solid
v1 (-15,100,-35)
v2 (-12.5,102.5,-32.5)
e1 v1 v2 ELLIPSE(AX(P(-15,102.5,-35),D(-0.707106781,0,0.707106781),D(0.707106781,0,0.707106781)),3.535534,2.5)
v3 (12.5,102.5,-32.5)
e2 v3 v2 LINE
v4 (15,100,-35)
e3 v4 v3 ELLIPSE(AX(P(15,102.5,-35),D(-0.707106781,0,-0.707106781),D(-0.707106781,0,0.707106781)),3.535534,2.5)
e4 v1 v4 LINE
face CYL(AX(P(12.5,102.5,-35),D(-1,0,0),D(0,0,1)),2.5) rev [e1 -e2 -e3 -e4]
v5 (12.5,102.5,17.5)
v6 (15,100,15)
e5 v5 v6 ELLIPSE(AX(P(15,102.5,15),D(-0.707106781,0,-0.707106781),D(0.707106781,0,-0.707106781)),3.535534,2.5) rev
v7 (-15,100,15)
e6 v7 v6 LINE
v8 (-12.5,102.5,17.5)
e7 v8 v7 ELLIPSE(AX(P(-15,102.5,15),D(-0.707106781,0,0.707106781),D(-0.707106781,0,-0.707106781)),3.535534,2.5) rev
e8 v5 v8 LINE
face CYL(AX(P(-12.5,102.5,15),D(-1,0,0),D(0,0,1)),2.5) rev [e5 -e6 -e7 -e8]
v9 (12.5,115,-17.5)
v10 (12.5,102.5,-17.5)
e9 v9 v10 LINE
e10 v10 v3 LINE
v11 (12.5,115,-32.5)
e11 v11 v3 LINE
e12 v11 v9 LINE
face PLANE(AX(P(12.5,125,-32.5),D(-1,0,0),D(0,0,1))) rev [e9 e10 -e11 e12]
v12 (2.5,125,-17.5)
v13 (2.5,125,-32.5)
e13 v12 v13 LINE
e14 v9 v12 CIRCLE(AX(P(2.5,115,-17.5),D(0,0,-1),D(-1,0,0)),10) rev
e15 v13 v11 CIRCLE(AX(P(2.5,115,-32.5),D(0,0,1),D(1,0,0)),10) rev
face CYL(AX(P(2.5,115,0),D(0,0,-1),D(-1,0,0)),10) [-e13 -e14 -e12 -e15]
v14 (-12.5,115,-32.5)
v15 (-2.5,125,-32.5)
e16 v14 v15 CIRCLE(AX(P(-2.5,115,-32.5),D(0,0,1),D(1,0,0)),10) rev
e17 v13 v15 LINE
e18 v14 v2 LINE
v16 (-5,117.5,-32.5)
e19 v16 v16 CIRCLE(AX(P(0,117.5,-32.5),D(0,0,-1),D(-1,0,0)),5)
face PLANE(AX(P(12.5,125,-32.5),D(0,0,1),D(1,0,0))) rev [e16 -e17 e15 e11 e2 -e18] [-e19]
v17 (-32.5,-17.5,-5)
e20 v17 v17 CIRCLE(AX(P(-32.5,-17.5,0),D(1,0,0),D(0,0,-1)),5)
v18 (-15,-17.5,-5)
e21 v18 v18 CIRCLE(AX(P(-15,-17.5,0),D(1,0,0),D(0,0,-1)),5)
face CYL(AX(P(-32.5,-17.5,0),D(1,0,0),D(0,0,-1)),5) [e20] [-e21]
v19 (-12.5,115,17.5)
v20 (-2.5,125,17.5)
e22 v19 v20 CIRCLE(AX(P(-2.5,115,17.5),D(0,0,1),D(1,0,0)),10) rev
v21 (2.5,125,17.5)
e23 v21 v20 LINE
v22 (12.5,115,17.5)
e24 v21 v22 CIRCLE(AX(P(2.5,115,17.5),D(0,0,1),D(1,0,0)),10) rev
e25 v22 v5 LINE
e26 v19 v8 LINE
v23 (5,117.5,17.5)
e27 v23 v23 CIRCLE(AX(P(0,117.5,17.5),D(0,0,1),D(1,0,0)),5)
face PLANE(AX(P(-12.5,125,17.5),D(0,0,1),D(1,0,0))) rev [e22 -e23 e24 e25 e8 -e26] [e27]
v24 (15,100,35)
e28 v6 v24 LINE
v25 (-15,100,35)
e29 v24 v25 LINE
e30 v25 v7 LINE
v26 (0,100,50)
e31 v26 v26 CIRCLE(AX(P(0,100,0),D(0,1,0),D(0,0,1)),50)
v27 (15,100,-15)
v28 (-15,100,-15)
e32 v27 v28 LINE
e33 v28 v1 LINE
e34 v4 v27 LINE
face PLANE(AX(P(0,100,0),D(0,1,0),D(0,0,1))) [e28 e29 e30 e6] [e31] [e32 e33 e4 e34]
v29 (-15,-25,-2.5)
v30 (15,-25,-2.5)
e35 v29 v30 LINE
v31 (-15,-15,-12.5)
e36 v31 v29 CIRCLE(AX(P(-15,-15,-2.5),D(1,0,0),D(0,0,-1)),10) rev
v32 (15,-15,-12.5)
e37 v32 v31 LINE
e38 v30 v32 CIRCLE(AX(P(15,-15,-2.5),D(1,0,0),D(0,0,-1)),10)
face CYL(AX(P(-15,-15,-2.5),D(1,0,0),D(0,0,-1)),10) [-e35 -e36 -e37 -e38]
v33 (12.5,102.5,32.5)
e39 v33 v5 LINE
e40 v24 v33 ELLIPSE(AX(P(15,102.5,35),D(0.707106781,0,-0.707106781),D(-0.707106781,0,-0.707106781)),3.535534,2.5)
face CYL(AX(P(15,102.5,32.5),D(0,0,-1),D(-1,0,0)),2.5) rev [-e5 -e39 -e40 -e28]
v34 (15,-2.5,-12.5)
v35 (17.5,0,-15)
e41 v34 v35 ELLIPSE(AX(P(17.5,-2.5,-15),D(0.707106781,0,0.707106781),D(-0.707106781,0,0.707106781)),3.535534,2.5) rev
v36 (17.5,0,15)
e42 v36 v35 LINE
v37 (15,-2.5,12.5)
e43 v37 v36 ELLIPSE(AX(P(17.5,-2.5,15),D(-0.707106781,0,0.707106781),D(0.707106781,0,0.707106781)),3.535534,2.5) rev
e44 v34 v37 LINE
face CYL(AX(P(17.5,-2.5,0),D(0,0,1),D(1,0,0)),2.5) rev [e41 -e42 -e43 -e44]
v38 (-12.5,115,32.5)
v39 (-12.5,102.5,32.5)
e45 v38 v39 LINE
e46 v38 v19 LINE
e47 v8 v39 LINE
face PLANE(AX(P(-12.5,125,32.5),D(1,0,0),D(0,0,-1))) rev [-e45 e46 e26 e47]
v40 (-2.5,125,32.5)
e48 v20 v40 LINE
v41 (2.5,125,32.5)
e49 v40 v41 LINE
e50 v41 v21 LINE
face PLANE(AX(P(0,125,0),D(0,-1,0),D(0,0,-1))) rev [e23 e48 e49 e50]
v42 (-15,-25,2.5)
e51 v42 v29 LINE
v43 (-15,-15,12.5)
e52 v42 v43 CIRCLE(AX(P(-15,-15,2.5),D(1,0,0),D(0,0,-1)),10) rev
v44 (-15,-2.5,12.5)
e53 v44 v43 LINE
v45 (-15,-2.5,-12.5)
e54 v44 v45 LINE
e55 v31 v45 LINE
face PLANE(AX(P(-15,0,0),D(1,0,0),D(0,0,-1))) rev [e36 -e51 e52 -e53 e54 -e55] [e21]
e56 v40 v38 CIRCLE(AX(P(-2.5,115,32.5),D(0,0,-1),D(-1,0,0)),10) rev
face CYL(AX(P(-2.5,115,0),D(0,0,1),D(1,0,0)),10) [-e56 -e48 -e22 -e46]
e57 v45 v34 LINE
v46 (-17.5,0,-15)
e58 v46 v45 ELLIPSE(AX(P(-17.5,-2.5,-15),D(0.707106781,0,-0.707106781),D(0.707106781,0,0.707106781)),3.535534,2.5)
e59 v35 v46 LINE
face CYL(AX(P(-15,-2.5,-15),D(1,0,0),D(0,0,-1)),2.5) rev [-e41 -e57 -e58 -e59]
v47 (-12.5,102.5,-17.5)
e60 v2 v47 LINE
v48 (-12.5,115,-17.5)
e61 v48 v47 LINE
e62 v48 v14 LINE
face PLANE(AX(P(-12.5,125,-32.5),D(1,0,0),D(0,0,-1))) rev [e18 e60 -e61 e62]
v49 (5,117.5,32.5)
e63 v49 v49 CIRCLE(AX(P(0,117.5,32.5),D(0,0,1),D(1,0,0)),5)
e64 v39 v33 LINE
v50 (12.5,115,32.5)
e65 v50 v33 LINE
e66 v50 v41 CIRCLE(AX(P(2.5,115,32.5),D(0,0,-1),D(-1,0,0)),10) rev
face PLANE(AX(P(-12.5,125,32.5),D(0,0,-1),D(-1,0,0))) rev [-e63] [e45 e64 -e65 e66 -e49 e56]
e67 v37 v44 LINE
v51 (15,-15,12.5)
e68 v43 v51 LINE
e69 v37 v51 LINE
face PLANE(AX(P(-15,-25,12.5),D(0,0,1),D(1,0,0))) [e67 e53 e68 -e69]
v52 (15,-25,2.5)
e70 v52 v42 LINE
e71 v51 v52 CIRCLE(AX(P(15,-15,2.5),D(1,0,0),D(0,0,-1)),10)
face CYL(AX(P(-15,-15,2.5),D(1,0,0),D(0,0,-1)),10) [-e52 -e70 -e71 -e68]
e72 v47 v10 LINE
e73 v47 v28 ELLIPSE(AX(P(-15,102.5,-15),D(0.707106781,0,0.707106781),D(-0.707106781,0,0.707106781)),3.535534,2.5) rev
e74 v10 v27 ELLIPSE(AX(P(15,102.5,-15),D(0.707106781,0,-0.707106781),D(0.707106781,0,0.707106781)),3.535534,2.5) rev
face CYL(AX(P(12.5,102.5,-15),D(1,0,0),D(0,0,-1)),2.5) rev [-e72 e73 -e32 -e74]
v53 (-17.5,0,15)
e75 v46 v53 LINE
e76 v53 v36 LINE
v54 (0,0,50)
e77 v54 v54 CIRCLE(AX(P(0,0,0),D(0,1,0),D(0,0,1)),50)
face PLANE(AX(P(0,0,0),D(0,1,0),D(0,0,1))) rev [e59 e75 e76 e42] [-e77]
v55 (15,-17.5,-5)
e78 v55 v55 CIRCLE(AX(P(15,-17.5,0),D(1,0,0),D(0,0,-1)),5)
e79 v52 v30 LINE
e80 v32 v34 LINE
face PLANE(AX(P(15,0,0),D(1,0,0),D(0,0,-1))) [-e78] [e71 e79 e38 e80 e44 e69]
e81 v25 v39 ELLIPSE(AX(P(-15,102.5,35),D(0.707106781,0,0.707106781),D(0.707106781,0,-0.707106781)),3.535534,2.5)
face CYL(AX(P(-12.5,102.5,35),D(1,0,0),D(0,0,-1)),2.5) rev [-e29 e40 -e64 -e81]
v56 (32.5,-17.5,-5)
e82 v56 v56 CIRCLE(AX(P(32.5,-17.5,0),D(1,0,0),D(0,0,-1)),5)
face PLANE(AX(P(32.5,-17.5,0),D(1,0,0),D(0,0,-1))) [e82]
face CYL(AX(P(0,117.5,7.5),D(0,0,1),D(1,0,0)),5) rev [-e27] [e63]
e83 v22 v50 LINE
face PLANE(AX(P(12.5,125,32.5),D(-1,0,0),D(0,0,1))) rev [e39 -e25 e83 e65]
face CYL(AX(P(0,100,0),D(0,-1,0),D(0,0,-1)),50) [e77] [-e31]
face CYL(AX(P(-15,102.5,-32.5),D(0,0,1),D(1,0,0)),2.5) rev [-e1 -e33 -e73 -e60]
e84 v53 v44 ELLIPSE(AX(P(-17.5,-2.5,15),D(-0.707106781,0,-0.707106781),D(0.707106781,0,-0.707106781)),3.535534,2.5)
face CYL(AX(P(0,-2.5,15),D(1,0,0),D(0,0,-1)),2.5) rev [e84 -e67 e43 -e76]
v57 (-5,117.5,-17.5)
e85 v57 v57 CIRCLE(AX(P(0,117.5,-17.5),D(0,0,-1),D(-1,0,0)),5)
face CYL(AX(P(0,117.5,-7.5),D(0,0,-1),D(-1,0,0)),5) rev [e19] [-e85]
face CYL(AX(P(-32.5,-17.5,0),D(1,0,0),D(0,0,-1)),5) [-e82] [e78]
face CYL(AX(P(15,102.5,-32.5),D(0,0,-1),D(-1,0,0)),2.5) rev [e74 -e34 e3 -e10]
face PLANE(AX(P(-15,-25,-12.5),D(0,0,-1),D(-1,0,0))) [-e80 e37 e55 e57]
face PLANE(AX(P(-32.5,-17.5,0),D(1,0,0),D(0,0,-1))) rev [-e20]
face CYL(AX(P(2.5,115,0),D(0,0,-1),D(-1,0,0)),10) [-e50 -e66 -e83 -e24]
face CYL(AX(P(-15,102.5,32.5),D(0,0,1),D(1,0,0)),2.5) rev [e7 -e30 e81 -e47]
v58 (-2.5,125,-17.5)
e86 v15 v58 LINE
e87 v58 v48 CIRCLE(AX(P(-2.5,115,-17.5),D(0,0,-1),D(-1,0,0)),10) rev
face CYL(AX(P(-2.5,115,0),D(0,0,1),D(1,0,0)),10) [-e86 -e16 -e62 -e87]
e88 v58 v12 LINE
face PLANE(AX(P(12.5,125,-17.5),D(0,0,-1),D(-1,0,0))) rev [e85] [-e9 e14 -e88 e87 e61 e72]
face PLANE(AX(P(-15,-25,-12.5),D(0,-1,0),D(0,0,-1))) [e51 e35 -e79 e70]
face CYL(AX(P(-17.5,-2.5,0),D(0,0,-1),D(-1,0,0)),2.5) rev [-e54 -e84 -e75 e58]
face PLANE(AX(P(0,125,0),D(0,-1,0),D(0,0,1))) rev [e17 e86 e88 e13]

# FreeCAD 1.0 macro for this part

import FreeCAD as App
import Part
import Sketcher
from FreeCAD import Vector
Q = App.Units.Quantity


def edges_at(feature, points):
    """Names of the edges that pass closest to the given points."""
    edges = feature.Shape.Edges
    near = lambda p: min(range(len(edges)), key=lambda i: edges[i].distToShape(Part.Vertex(*p))[0])
    return sorted({f"Edge{near(p) + 1}" for p in points})


def add_polygon(sketch, points):
    """Adds a closed chain of lines whose ends are joined by coincident constraints."""
    first, n = sketch.GeometryCount, len(points)
    for a, b in zip(points, points[1:] + points[:1]):
        sketch.addGeometry(Part.LineSegment(App.Vector(*a, 0), App.Vector(*b, 0)), False)
    for i in range(n):
        sketch.addConstraint(Sketcher.Constraint("Coincident", first + i, 2, first + (i + 1) % n, 1))

doc = App.newDocument("Part")
body = doc.addObject("PartDesign::Body", "Body")

# Sketch on XZ plane
sketch1 = doc.addObject("Sketcher::SketchObject", "Sketch")
body.addObject(sketch1)
sketch1.AttachmentSupport = (doc.XZ_Plane, [""])
sketch1.MapMode = "FlatFace"
sketch1.addGeometry(Part.Circle(Vector(0, 0, 0), Vector(0, 0, 1), 50), False)
sketch1.addConstraint([
    Sketcher.Constraint("Coincident", 0, 3, -1, 1),
    Sketcher.Constraint("Diameter", 0, Q("100 mm")),
])
pad1 = doc.addObject("PartDesign::Pad", "Pad")
body.addObject(pad1)
pad1.Profile = sketch1
pad1.Length = 100
pad1.Reversed = True

# Sketch on XZ plane
sketch2 = doc.addObject("Sketcher::SketchObject", "Sketch001")
body.addObject(sketch2)
sketch2.AttachmentSupport = (doc.XZ_Plane, [""])
sketch2.MapMode = "FlatFace"
sketch2.AttachmentOffset = App.Placement(Vector(0, 0, -100), App.Rotation())
add_polygon(sketch2, [(-12, 18), (-12, 32), (12, 32), (12, 18)])  # lines 0-3
sketch2.addConstraint([
    Sketcher.Constraint("Vertical", 0),
    Sketcher.Constraint("Horizontal", 1),
    Sketcher.Constraint("Vertical", 2),
    Sketcher.Constraint("Horizontal", 3),
    Sketcher.Constraint("DistanceX", 1, 1, 1, 2, Q("25 mm")),
    Sketcher.Constraint("DistanceY", 0, 1, 0, 2, Q("15 mm")),
    Sketcher.Constraint("DistanceX", 0, 2, -1, 1, Q("12.5 mm")),
    Sketcher.Constraint("DistanceY", -1, 1, 0, 2, Q("32.5 mm")),
])
pad2 = doc.addObject("PartDesign::Pad", "Pad001")
body.addObject(pad2)
pad2.Profile = sketch2
pad2.Length = 25
pad2.Reversed = True
doc.recompute()

fillet = doc.addObject("PartDesign::Fillet", "Fillet")
body.addObject(fillet)
fillet.Base = (pad2, edges_at(pad2, [
    (12.5, 100, 25),
    (0, 100, 17.5),
    (-12.5, 100, 25),
    (0, 100, 32.5),
]))
fillet.Radius = 2.5
doc.recompute()

fillet2 = doc.addObject("PartDesign::Fillet", "Fillet001")
body.addObject(fillet2)
fillet2.Base = (fillet, edges_at(fillet, [(12.5, 125, 25), (-12.5, 125, 25)]))
fillet2.Radius = 10

# Sketch on XY plane
sketch3 = doc.addObject("Sketcher::SketchObject", "Sketch002")
body.addObject(sketch3)
sketch3.AttachmentSupport = (doc.XY_Plane, [""])
sketch3.MapMode = "FlatFace"
sketch3.AttachmentOffset = App.Placement(Vector(0, 0, 32.5), App.Rotation())
sketch3.addGeometry(Part.Circle(Vector(0, 118, 0), Vector(0, 0, 1), 5), False)
sketch3.addConstraint([
    Sketcher.Constraint("PointOnObject", 0, 3, -2),
    Sketcher.Constraint("Diameter", 0, Q("10 mm")),
    Sketcher.Constraint("DistanceY", -1, 1, 0, 3, Q("117.5 mm")),
])
pocket1 = doc.addObject("PartDesign::Pocket", "Pocket")
body.addObject(pocket1)
pocket1.Profile = sketch3
pocket1.Length = 25
doc.recompute()

polarpattern = doc.addObject("PartDesign::PolarPattern", "PolarPattern")
body.addObject(polarpattern)
polarpattern.Originals = [pad2, pocket1]
polarpattern.Axis = (doc.Y_Axis, [""])
polarpattern.Angle = 360
polarpattern.Occurrences = 2
body.Tip = polarpattern
doc.recompute()

fillet3 = doc.addObject("PartDesign::Fillet", "Fillet002")
body.addObject(fillet3)
fillet3.Base = (polarpattern, edges_at(polarpattern, [
    (-12.5, 100, -25),
    (0, 100, -17.5),
    (12.5, 100, -25),
    (0, 100, -32.5),
]))
fillet3.Radius = 2.5
doc.recompute()

fillet4 = doc.addObject("PartDesign::Fillet", "Fillet003")
body.addObject(fillet4)
fillet4.Base = (fillet3, edges_at(fillet3, [(-12.5, 125, -25), (12.5, 125, -25)]))
fillet4.Radius = 10

# Sketch on YZ plane
sketch4 = doc.addObject("Sketcher::SketchObject", "Sketch003")
body.addObject(sketch4)
sketch4.AttachmentSupport = (doc.YZ_Plane, [""])
sketch4.MapMode = "FlatFace"
add_polygon(sketch4, [(0, 12), (-25, 12), (-25, -12), (0, -12)])  # lines 0-3
sketch4.addConstraint([
    Sketcher.Constraint("Horizontal", 0),
    Sketcher.Constraint("Vertical", 1),
    Sketcher.Constraint("Horizontal", 2),
    Sketcher.Constraint("Vertical", 3),
    Sketcher.Constraint("Symmetric", 2, 2, 3, 2, -1, 1),
    Sketcher.Constraint("Equal", 2, 1),
    Sketcher.Constraint("DistanceX", 0, 2, 0, 1, Q("25 mm")),
])
pad3 = doc.addObject("PartDesign::Pad", "Pad002")
body.addObject(pad3)
pad3.Profile = sketch4
pad3.Type = "TwoLengths"
pad3.Length = 15
pad3.Length2 = 15
doc.recompute()

fillet5 = doc.addObject("PartDesign::Fillet", "Fillet004")
body.addObject(fillet5)
fillet5.Base = (pad3, edges_at(pad3, [
    (0, 0, 12.5),
    (-15, 0, 0),
    (0, 0, -12.5),
    (15, 0, 0),
]))
fillet5.Radius = 2.5
doc.recompute()

fillet6 = doc.addObject("PartDesign::Fillet", "Fillet005")
body.addObject(fillet6)
fillet6.Base = (fillet5, edges_at(fillet5, [(0, -25, 12.5), (0, -25, -12.5)]))
fillet6.Radius = 10

# Sketch on YZ plane
sketch5 = doc.addObject("Sketcher::SketchObject", "Sketch004")
body.addObject(sketch5)
sketch5.AttachmentSupport = (doc.YZ_Plane, [""])
sketch5.MapMode = "FlatFace"
sketch5.addGeometry(Part.Circle(Vector(-18, 0, 0), Vector(0, 0, 1), 5), False)
sketch5.addConstraint([
    Sketcher.Constraint("PointOnObject", 0, 3, -1),
    Sketcher.Constraint("Diameter", 0, Q("10 mm")),
    Sketcher.Constraint("DistanceX", 0, 3, -1, 1, Q("17.5 mm")),
])
pad4 = doc.addObject("PartDesign::Pad", "Pad003")
body.addObject(pad4)
pad4.Profile = sketch5
pad4.Type = "TwoLengths"
pad4.Length = 32.5
pad4.Length2 = 32.5

doc.recompute()
